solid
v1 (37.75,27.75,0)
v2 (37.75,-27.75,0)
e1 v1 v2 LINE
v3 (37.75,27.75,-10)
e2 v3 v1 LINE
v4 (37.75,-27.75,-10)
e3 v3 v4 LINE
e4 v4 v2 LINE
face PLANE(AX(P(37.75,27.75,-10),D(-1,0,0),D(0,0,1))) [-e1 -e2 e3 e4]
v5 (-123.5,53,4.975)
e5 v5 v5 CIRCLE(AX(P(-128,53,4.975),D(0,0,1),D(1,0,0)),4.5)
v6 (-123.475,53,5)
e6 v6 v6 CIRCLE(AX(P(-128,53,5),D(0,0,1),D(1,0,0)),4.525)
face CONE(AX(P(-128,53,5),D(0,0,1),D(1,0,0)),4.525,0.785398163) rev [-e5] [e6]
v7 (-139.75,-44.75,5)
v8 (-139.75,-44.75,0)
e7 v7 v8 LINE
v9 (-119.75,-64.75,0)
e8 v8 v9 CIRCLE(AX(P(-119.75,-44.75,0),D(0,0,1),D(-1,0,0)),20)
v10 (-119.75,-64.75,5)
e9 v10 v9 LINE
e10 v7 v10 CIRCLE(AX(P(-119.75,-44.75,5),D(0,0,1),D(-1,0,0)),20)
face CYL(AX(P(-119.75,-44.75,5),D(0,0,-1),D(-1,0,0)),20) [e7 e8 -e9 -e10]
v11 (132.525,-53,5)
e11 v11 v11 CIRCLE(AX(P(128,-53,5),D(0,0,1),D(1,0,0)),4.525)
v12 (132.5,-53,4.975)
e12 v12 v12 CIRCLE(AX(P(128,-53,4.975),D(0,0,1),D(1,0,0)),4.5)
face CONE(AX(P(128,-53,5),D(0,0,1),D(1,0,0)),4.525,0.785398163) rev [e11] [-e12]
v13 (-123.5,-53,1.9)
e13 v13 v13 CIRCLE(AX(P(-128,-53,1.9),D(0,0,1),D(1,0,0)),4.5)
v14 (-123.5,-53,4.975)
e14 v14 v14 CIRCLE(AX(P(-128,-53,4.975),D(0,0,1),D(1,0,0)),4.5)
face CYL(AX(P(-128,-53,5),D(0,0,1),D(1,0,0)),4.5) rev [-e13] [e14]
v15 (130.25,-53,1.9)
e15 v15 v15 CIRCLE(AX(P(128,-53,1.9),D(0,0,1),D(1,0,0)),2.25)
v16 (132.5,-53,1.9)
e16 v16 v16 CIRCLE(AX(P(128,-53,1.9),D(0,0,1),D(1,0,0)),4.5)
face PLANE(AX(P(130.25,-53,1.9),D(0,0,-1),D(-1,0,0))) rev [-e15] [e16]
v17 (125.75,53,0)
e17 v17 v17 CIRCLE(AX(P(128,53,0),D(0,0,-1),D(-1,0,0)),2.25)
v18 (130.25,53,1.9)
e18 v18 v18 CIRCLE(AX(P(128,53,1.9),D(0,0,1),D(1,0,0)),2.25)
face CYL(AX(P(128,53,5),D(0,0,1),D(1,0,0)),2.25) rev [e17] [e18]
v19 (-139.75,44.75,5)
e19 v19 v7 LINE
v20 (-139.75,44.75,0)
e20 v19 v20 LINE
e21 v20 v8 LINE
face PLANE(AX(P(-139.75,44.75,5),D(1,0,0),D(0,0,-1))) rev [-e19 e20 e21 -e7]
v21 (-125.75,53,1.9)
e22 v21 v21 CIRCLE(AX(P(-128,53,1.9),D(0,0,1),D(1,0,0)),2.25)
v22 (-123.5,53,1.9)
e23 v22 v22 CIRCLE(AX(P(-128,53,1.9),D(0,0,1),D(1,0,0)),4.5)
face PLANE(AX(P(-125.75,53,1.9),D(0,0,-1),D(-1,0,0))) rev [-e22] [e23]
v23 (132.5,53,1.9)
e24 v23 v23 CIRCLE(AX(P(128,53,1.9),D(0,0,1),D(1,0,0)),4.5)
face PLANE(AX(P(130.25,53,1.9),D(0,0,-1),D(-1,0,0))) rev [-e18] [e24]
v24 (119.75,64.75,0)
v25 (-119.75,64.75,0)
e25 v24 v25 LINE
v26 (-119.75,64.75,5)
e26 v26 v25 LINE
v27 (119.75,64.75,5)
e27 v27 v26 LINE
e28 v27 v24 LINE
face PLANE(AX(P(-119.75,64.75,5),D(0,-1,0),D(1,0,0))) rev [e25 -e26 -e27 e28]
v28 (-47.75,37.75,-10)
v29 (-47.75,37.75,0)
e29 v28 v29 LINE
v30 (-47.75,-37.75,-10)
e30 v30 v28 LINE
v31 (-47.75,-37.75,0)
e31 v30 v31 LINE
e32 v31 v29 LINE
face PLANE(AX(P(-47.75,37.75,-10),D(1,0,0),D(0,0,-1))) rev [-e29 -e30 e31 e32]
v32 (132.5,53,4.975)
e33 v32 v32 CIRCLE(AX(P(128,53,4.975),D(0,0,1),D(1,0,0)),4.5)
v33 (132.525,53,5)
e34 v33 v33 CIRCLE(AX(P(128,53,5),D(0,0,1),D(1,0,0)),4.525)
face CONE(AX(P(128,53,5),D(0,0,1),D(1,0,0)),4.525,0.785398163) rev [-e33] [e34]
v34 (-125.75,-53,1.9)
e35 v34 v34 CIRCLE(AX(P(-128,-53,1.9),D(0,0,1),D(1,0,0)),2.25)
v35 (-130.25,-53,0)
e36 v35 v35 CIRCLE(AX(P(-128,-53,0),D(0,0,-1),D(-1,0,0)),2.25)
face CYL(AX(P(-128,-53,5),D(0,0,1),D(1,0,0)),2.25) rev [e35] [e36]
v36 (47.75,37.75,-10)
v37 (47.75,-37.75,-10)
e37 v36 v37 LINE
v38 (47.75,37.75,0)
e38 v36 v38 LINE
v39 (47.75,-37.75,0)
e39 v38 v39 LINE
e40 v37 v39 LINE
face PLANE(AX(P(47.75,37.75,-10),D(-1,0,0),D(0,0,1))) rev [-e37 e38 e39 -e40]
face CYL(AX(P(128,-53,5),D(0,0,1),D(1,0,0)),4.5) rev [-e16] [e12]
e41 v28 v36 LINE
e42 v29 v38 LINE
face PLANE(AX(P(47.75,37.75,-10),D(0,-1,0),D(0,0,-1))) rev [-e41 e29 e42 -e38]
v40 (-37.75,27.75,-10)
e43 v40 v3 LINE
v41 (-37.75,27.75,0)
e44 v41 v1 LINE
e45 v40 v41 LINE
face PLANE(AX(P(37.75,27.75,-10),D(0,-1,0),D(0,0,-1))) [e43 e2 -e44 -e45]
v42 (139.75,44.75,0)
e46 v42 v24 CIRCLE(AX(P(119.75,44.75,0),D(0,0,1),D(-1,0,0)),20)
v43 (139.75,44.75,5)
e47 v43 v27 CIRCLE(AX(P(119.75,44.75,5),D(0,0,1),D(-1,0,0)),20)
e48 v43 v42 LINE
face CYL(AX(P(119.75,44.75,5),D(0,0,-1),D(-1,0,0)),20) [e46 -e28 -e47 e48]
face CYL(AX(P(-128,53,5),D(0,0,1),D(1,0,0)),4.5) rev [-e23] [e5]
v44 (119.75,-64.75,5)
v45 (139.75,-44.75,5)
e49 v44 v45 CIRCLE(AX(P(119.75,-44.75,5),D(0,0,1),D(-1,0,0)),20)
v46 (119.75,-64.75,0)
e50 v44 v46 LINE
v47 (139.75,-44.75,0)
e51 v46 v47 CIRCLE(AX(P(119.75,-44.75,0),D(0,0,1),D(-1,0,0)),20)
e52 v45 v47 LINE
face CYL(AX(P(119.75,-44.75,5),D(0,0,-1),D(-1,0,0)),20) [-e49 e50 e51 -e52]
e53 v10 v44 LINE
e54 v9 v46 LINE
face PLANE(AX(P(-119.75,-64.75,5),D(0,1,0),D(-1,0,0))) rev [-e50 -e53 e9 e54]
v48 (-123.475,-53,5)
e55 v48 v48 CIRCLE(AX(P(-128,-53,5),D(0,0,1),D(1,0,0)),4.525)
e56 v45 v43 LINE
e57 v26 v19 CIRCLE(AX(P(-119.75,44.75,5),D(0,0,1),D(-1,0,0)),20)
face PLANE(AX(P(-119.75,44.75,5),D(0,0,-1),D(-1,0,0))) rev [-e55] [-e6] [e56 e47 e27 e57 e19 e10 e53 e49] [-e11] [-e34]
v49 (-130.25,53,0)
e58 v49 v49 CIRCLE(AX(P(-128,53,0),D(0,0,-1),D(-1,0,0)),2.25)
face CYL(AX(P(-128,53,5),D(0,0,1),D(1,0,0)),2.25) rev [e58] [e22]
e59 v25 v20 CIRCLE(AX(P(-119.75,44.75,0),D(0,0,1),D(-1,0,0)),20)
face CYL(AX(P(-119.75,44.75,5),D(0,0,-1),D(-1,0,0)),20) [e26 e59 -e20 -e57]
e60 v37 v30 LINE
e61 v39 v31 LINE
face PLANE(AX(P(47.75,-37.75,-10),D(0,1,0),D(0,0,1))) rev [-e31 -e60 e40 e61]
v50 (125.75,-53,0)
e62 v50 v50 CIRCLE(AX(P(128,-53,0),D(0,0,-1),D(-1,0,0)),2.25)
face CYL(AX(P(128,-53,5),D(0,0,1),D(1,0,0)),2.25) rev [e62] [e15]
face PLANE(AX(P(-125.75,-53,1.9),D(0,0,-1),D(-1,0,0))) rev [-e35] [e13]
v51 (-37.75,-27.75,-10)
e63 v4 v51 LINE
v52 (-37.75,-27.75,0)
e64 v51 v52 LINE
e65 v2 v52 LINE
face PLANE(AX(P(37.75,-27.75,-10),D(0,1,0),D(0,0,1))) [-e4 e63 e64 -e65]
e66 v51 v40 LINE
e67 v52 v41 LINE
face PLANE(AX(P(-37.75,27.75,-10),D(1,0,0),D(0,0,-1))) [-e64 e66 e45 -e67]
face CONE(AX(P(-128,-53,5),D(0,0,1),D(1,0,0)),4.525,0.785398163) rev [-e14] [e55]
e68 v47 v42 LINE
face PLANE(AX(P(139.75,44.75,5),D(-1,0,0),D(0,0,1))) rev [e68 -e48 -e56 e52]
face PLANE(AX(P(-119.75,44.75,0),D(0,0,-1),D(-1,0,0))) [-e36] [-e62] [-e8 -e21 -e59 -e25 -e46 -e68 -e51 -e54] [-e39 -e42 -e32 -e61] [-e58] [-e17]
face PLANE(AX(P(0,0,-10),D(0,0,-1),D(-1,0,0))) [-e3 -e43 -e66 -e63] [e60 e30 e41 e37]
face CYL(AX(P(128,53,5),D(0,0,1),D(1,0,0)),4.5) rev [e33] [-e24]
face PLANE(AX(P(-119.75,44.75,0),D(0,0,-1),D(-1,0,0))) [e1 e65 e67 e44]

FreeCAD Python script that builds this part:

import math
import FreeCAD as App
import Part
import Sketcher
from FreeCAD import Vector
Q = App.Units.Quantity

doc = App.newDocument("Part")
body = doc.addObject("PartDesign::Body", "Body")

# Sketch on XY plane
sketch1 = body.newObject("Sketcher::SketchObject", "Sketch")
sketch1.AttachmentSupport = (doc.getObject("XY_Plane"), [""])
sketch1.MapMode = "FlatFace"
sketch1.addGeometry([
    Part.LineSegment(Vector(119.75, 64.75, 0), Vector(-119.75, 64.75, 0)),  # 0
    Part.ArcOfCircle(Part.Circle(Vector(-119.75, 44.75, 0), Vector(0, 0, 1), 20), math.radians(90), math.radians(180)),  # 1
    Part.LineSegment(Vector(-139.75, 44.75, 0), Vector(-139.75, -44.75, 0)),  # 2
    Part.ArcOfCircle(Part.Circle(Vector(-119.75, -44.75, 0), Vector(0, 0, 1), 20), math.radians(180), math.radians(270)),  # 3
    Part.LineSegment(Vector(-119.75, -64.75, 0), Vector(119.75, -64.75, 0)),  # 4
    Part.ArcOfCircle(Part.Circle(Vector(119.75, -44.75, 0), Vector(0, 0, 1), 20), math.radians(-90), math.radians(0)),  # 5
    Part.LineSegment(Vector(139.75, -44.75, 0), Vector(139.75, 44.75, 0)),  # 6
    Part.ArcOfCircle(Part.Circle(Vector(119.75, 44.75, 0), Vector(0, 0, 1), 20), math.radians(0), math.radians(90)),  # 7
], False)
sketch1.addConstraint([
    Sketcher.Constraint("Tangent", 0, 2, 1, 1),
    Sketcher.Constraint("Tangent", 1, 2, 2, 1),
    Sketcher.Constraint("Tangent", 2, 2, 3, 1),
    Sketcher.Constraint("Tangent", 3, 2, 4, 1),
    Sketcher.Constraint("Tangent", 4, 2, 5, 1),
    Sketcher.Constraint("Tangent", 5, 2, 6, 1),
    Sketcher.Constraint("Tangent", 6, 2, 7, 1),
    Sketcher.Constraint("Tangent", 7, 2, 0, 1),
    Sketcher.Constraint("Horizontal", 0),
    Sketcher.Constraint("Vertical", 2),
    Sketcher.Constraint("Horizontal", 4),
    Sketcher.Constraint("Vertical", 6),
    Sketcher.Constraint("Equal", 1, 3),
    Sketcher.Constraint("Equal", 3, 5),
    Sketcher.Constraint("Equal", 5, 7),
    Sketcher.Constraint("Symmetric", 1, 3, 5, 3, -1, 1),
    Sketcher.Constraint("Radius", 1, 20.0),
    Sketcher.Constraint("DistanceX", 0, 2, 0, 1, 239.5),
    Sketcher.Constraint("DistanceY", 2, 2, 2, 1, 89.5),
])
pad1 = body.newObject("PartDesign::Pad", "Pad")
pad1.Profile = sketch1
pad1.Length = 5

# Sketch on YZ plane
sketch2 = body.newObject("Sketcher::SketchObject", "Sketch001")
sketch2.AttachmentSupport = (doc.getObject("YZ_Plane"), [""])
sketch2.MapMode = "FlatFace"
sketch2.AttachmentOffset = App.Placement(Vector(0, 0, -128), App.Rotation())
sketch2.addGeometry([
    Part.LineSegment(Vector(53, -26.351936, 0), Vector(53, 5, 0)),  # 0
    Part.LineSegment(Vector(53, 5, 0), Vector(48.475, 5, 0)),  # 1
    Part.LineSegment(Vector(48.475, 5, 0), Vector(48.5, 4.975, 0)),  # 2
    Part.LineSegment(Vector(48.5, 4.975, 0), Vector(48.5, 1.9, 0)),  # 3
    Part.LineSegment(Vector(48.5, 1.9, 0), Vector(50.75, 1.9, 0)),  # 4
    Part.LineSegment(Vector(50.75, 1.9, 0), Vector(50.75, -25, 0)),  # 5
    Part.LineSegment(Vector(50.75, -25, 0), Vector(53, -26.351936, 0)),  # 6
], False)
sketch2.addGeometry(Part.LineSegment(Vector(53, 5, 0), Vector(53, -26.351936, 0)), True)  # axis
sketch2.addConstraint([
    Sketcher.Constraint("Coincident", 0, 2, 1, 1),
    Sketcher.Constraint("Coincident", 1, 2, 2, 1),
    Sketcher.Constraint("Coincident", 2, 2, 3, 1),
    Sketcher.Constraint("Coincident", 3, 2, 4, 1),
    Sketcher.Constraint("Coincident", 4, 2, 5, 1),
    Sketcher.Constraint("Coincident", 5, 2, 6, 1),
    Sketcher.Constraint("Coincident", 6, 2, 0, 1),
    Sketcher.Constraint("Vertical", 0),
    Sketcher.Constraint("Horizontal", 1),
    Sketcher.Constraint("Vertical", 3),
    Sketcher.Constraint("Horizontal", 4),
    Sketcher.Constraint("Vertical", 5),
    Sketcher.Constraint("Vertical", 7),
    Sketcher.Constraint("Coincident", 7, 1, 0, 2),
    Sketcher.Constraint("Equal", 0, 7),
    Sketcher.Constraint("Angle", 2, Q("-45 deg")),
    Sketcher.Constraint("Angle", 6, Q("-31 deg")),
    Sketcher.Constraint("DistanceY", 5, 2, 5, 1, 26.9),
    Sketcher.Constraint("DistanceX", -1, 1, 0, 2, 53.0),
    Sketcher.Constraint("DistanceY", -1, 1, 0, 2, 5.0),
    Sketcher.Constraint("DistanceY", 5, 2, -1, 1, 25.0),
    Sketcher.Constraint("DistanceX", 4, 1, 4, 2, 2.25),
    Sketcher.Constraint("DistanceX", -1, 1, 2, 2, 48.5),
    Sketcher.Constraint("DistanceX", 1, 2, 1, 1, 4.525),
])
groove = body.newObject("PartDesign::Groove", "Groove")
groove.Profile = sketch2
groove.ReferenceAxis = (sketch2, ["Axis0"])
groove.Angle = 360
doc.recompute()

linearpattern = body.newObject("PartDesign::LinearPattern", "LinearPattern")
linearpattern.Originals = [groove]
linearpattern.Direction = (doc.getObject("Y_Axis"), [""])
linearpattern.Mode = "offset"
linearpattern.Offset = 106
linearpattern.Occurrences = 2
linearpattern.Reversed = True
body.Tip = linearpattern
doc.recompute()

linearpattern2 = body.newObject("PartDesign::LinearPattern", "LinearPattern001")
linearpattern2.Originals = [groove]
linearpattern2.Direction = (doc.getObject("X_Axis"), [""])
linearpattern2.Mode = "offset"
linearpattern2.Offset = 256
linearpattern2.Occurrences = 2
body.Tip = linearpattern2
doc.recompute()

datumline = body.newObject("PartDesign::Line", "DatumLine")
datumline.Placement = App.Placement(Vector(0, 0, 0), App.Rotation(Vector(0, 0, 1), Vector(0.923928871, -0.382564298, 0)))
linearpattern3 = body.newObject("PartDesign::LinearPattern", "LinearPattern002")
linearpattern3.Originals = [groove]
linearpattern3.Direction = (datumline, [""])
linearpattern3.Mode = "offset"
linearpattern3.Offset = 277.077606
linearpattern3.Occurrences = 2
body.Tip = linearpattern3

# Sketch on XY plane
sketch3 = body.newObject("Sketcher::SketchObject", "Sketch002")
sketch3.AttachmentSupport = (doc.getObject("XY_Plane"), [""])
sketch3.MapMode = "FlatFace"
sketch3.addGeometry([
    Part.LineSegment(Vector(47.75, 37.75, 0), Vector(47.75, -37.75, 0)),  # 0
    Part.LineSegment(Vector(47.75, -37.75, 0), Vector(-47.75, -37.75, 0)),  # 1
    Part.LineSegment(Vector(-47.75, -37.75, 0), Vector(-47.75, 37.75, 0)),  # 2
    Part.LineSegment(Vector(-47.75, 37.75, 0), Vector(47.75, 37.75, 0)),  # 3
    Part.LineSegment(Vector(-37.75, -27.75, 0), Vector(37.75, -27.75, 0)),  # 4
    Part.LineSegment(Vector(37.75, -27.75, 0), Vector(37.75, 27.75, 0)),  # 5
    Part.LineSegment(Vector(37.75, 27.75, 0), Vector(-37.75, 27.75, 0)),  # 6
    Part.LineSegment(Vector(-37.75, 27.75, 0), Vector(-37.75, -27.75, 0)),  # 7
], False)
sketch3.addConstraint([
    Sketcher.Constraint("Coincident", 0, 2, 1, 1),
    Sketcher.Constraint("Coincident", 1, 2, 2, 1),
    Sketcher.Constraint("Coincident", 2, 2, 3, 1),
    Sketcher.Constraint("Coincident", 3, 2, 0, 1),
    Sketcher.Constraint("Coincident", 4, 2, 5, 1),
    Sketcher.Constraint("Coincident", 5, 2, 6, 1),
    Sketcher.Constraint("Coincident", 6, 2, 7, 1),
    Sketcher.Constraint("Coincident", 7, 2, 4, 1),
    Sketcher.Constraint("Vertical", 0),
    Sketcher.Constraint("Horizontal", 1),
    Sketcher.Constraint("Vertical", 2),
    Sketcher.Constraint("Horizontal", 3),
    Sketcher.Constraint("Horizontal", 4),
    Sketcher.Constraint("Vertical", 5),
    Sketcher.Constraint("Horizontal", 6),
    Sketcher.Constraint("Vertical", 7),
    Sketcher.Constraint("Symmetric", 0, 2, 2, 2, -1, 1),
    Sketcher.Constraint("Symmetric", 4, 2, 6, 2, -1, 1),
    Sketcher.Constraint("Equal", 6, 0),
    Sketcher.Constraint("DistanceX", 1, 2, 1, 1, 95.5),
    Sketcher.Constraint("DistanceX", 4, 1, 4, 2, 75.5),
    Sketcher.Constraint("DistanceY", 5, 1, 5, 2, 55.5),
])
pad2 = body.newObject("PartDesign::Pad", "Pad001")
pad2.Profile = sketch3
pad2.Length = 10
pad2.Reversed = True

doc.recompute()
